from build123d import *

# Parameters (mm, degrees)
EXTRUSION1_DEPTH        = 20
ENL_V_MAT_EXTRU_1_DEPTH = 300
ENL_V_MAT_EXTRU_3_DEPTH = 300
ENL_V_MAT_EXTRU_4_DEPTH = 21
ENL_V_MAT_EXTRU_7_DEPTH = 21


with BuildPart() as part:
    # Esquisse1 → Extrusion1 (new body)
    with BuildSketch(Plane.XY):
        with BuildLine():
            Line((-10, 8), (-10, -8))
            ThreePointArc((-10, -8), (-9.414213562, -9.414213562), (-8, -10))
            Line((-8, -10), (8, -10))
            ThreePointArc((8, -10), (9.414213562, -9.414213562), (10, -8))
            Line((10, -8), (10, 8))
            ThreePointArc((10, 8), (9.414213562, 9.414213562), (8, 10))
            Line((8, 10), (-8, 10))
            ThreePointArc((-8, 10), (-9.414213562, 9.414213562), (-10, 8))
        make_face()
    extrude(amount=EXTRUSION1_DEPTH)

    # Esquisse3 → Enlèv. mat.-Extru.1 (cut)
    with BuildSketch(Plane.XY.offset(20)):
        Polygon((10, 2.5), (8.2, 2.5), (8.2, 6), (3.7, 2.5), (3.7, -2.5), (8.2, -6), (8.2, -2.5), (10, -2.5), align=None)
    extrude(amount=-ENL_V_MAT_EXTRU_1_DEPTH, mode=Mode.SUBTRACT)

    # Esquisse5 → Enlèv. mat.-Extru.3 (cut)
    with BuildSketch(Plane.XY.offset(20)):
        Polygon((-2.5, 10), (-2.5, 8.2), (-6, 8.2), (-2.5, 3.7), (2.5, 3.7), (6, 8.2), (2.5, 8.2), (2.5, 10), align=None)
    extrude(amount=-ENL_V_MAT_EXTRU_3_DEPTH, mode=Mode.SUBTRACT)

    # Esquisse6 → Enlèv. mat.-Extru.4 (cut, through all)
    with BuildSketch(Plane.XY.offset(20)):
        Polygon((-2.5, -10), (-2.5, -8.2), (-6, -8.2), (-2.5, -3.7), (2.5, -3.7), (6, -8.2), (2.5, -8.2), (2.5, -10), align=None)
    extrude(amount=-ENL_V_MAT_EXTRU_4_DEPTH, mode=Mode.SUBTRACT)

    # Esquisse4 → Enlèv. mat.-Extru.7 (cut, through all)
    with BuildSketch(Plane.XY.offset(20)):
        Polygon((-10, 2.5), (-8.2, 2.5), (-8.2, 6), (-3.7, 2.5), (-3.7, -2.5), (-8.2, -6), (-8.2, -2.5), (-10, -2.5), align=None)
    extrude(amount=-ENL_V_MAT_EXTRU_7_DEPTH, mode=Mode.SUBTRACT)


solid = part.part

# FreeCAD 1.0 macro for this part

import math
import FreeCAD as App
import Part
import Sketcher
from FreeCAD import Vector
Q = App.Units.Quantity


def add_polygon(sketch, points):
    """Adds a closed chain of lines whose ends are joined by coincident constraints."""
    first, n = sketch.GeometryCount, len(points)
    for a, b in zip(points, points[1:] + points[:1]):
        sketch.addGeometry(Part.LineSegment(App.Vector(*a, 0), App.Vector(*b, 0)), False)
    for i in range(n):
        sketch.addConstraint(Sketcher.Constraint("Coincident", first + i, 2, first + (i + 1) % n, 1))

doc = App.newDocument("Part")
params = doc.addObject("Spreadsheet::Sheet", "Params")
for row, (alias, value) in enumerate([
    ("sketch1_radius", "2 mm"),
    ("sketch1_width", "16 mm"),
    ("pad1_length", "20 mm"),
    ("sketch2_height", "5 mm"),
    ("sketch2_width", "1.8 mm"),
    ("sketch2_height2", "3.5 mm"),
    ("pocket1_length", "300 mm"),
    ("sketch3_width", "5 mm"),
    ("sketch3_width2", "3.5 mm"),
    ("sketch3_height", "1.8 mm"),
    ("pocket2_length", "300 mm"),
    ("sketch4_width", "5 mm"),
    ("sketch4_width2", "3.5 mm"),
    ("sketch4_height", "1.8 mm"),
    ("sketch5_height", "5 mm"),
    ("sketch5_width", "1.8 mm"),
    ("sketch5_height2", "3.5 mm"),
], start=1):
    params.set(f"A{row}", alias)
    params.set(f"B{row}", "=" + value)
    params.setAlias(f"B{row}", alias)

body = doc.addObject("PartDesign::Body", "Body")

sketch1 = body.newObject("Sketcher::SketchObject", "Sketch")
sketch1.AttachmentSupport = (doc.getObject("XY_Plane"), [""])
sketch1.MapMode = "FlatFace"
sketch1.addGeometry([
    Part.LineSegment(Vector(-10, 8, 0), Vector(-10, -8, 0)),
    Part.ArcOfCircle(Part.Circle(Vector(-8, -8, 0), Vector(0, 0, 1), 2), math.radians(-180), math.radians(-90)),
    Part.LineSegment(Vector(-8, -10, 0), Vector(8, -10, 0)),
    Part.ArcOfCircle(Part.Circle(Vector(8, -8, 0), Vector(0, 0, 1), 2), math.radians(-90), math.radians(0)),
    Part.LineSegment(Vector(10, -8, 0), Vector(10, 8, 0)),
    Part.ArcOfCircle(Part.Circle(Vector(8, 8, 0), Vector(0, 0, 1), 2), math.radians(0), math.radians(90)),
    Part.LineSegment(Vector(8, 10, 0), Vector(-8, 10, 0)),
    Part.ArcOfCircle(Part.Circle(Vector(-8, 8, 0), Vector(0, 0, 1), 2), math.radians(90), math.radians(180)),
], False)
sketch1.addConstraint([
    Sketcher.Constraint("Tangent", 0, 2, 1, 1),
    Sketcher.Constraint("Tangent", 1, 2, 2, 1),
    Sketcher.Constraint("Tangent", 2, 2, 3, 1),
    Sketcher.Constraint("Tangent", 3, 2, 4, 1),
    Sketcher.Constraint("Tangent", 4, 2, 5, 1),
    Sketcher.Constraint("Tangent", 5, 2, 6, 1),
    Sketcher.Constraint("Tangent", 6, 2, 7, 1),
    Sketcher.Constraint("Tangent", 7, 2, 0, 1),
    Sketcher.Constraint("Vertical", 0),
    Sketcher.Constraint("Horizontal", 2),
    Sketcher.Constraint("Vertical", 4),
    Sketcher.Constraint("Horizontal", 6),
    Sketcher.Constraint("Equal", 1, 3),
    Sketcher.Constraint("Equal", 3, 5),
    Sketcher.Constraint("Equal", 5, 7),
    Sketcher.Constraint("Symmetric", 1, 3, 5, 3, -1, 1),
    Sketcher.Constraint("Equal", 6, 0),
    Sketcher.Constraint("Radius", 1, Q("2 mm")),
    Sketcher.Constraint("DistanceX", 2, 1, 2, 2, Q("16 mm")),
])
sketch1.setExpression("Constraints[17]", "Params.sketch1_radius")
sketch1.setExpression("Constraints[18]", "Params.sketch1_width")
pad1 = body.newObject("PartDesign::Pad", "Pad")
pad1.Profile = sketch1
pad1.setExpression("Length", "Params.pad1_length")

sketch2 = body.newObject("Sketcher::SketchObject", "Sketch001")
sketch2.AttachmentSupport = (doc.getObject("XY_Plane"), [""])
sketch2.MapMode = "FlatFace"
sketch2.AttachmentOffset = App.Placement(Vector(0, 0, 20), App.Rotation())
add_polygon(sketch2, [(10, 2.5), (8.2, 2.5), (8.2, 6), (3.7, 2.5), (3.7, -2.5), (8.2, -6), (8.2, -2.5), (10, -2.5)])
sketch2.addConstraint([
    Sketcher.Constraint("Horizontal", 0),
    Sketcher.Constraint("Vertical", 1),
    Sketcher.Constraint("Vertical", 3),
    Sketcher.Constraint("Vertical", 5),
    Sketcher.Constraint("Horizontal", 6),
    Sketcher.Constraint("Vertical", 7),
    Sketcher.Constraint("Symmetric", 1, 2, 4, 2, -1),
    Sketcher.Constraint("Horizontal", 0, 2, 2, 2),
    Sketcher.Constraint("Horizontal", 3, 2, 5, 2),
    Sketcher.Constraint("Equal", 1, 5),
    Sketcher.Constraint("DistanceY", 3, 2, 3, 1, Q("5 mm")),
    Sketcher.Constraint("DistanceX", 0, 2, 0, 1, Q("1.8 mm")),
    Sketcher.Constraint("DistanceY", 1, 1, 1, 2, Q("3.5 mm")),
    Sketcher.Constraint("DistanceX", -1, 1, 6, 2, Q("10 mm")),
    Sketcher.Constraint("DistanceX", -1, 1, 2, 2, Q("3.7 mm")),
])
sketch2.setExpression("Constraints[18]", "Params.sketch2_height")
sketch2.setExpression("Constraints[19]", "Params.sketch2_width")
sketch2.setExpression("Constraints[20]", "Params.sketch2_height2")
pocket1 = body.newObject("PartDesign::Pocket", "Pocket")
pocket1.Profile = sketch2
pocket1.setExpression("Length", "Params.pocket1_length")

sketch3 = body.newObject("Sketcher::SketchObject", "Sketch002")
sketch3.AttachmentSupport = (doc.getObject("XY_Plane"), [""])
sketch3.MapMode = "FlatFace"
sketch3.AttachmentOffset = App.Placement(Vector(0, 0, 20), App.Rotation())
add_polygon(sketch3, [(-2.5, 10), (-2.5, 8.2), (-6, 8.2), (-2.5, 3.7), (2.5, 3.7), (6, 8.2), (2.5, 8.2), (2.5, 10)])
sketch3.addConstraint([
    Sketcher.Constraint("Vertical", 0),
    Sketcher.Constraint("Horizontal", 1),
    Sketcher.Constraint("Horizontal", 3),
    Sketcher.Constraint("Horizontal", 5),
    Sketcher.Constraint("Vertical", 6),
    Sketcher.Constraint("Horizontal", 7),
    Sketcher.Constraint("Symmetric", 1, 2, 4, 2, -2),
    Sketcher.Constraint("Vertical", 0, 2, 2, 2),
    Sketcher.Constraint("Vertical", 3, 2, 5, 2),
    Sketcher.Constraint("Equal", 1, 5),
    Sketcher.Constraint("DistanceX", 3, 1, 3, 2, Q("5 mm")),
    Sketcher.Constraint("DistanceX", 1, 2, 1, 1, Q("3.5 mm")),
    Sketcher.Constraint("DistanceY", 0, 2, 0, 1, Q("1.8 mm")),
    Sketcher.Constraint("DistanceY", -1, 1, 6, 2, Q("10 mm")),
    Sketcher.Constraint("DistanceY", -1, 1, 2, 2, Q("3.7 mm")),
])
sketch3.setExpression("Constraints[18]", "Params.sketch3_width")
sketch3.setExpression("Constraints[19]", "Params.sketch3_width2")
sketch3.setExpression("Constraints[20]", "Params.sketch3_height")
pocket2 = body.newObject("PartDesign::Pocket", "Pocket001")
pocket2.Profile = sketch3
pocket2.setExpression("Length", "Params.pocket2_length")

sketch4 = body.newObject("Sketcher::SketchObject", "Sketch003")
sketch4.AttachmentSupport = (doc.getObject("XY_Plane"), [""])
sketch4.MapMode = "FlatFace"
sketch4.AttachmentOffset = App.Placement(Vector(0, 0, 20), App.Rotation())
add_polygon(sketch4, [(-2.5, -8.2), (-2.5, -10), (2.5, -10), (2.5, -8.2), (6, -8.2), (2.5, -3.7), (-2.5, -3.7), (-6, -8.2)])
sketch4.addConstraint([
    Sketcher.Constraint("Vertical", 0),
    Sketcher.Constraint("Horizontal", 1),
    Sketcher.Constraint("Vertical", 2),
    Sketcher.Constraint("Horizontal", 3),
    Sketcher.Constraint("Horizontal", 5),
    Sketcher.Constraint("Horizontal", 7),
    Sketcher.Constraint("Symmetric", 3, 2, 6, 2, -2),
    Sketcher.Constraint("Vertical", 2, 2, 4, 2),
    Sketcher.Constraint("Vertical", 0, 2, 5, 2),
    Sketcher.Constraint("Equal", 3, 7),
    Sketcher.Constraint("DistanceX", 1, 1, 1, 2, Q("5 mm")),
    Sketcher.Constraint("DistanceX", 3, 1, 3, 2, Q("3.5 mm")),
    Sketcher.Constraint("DistanceY", 0, 2, 0, 1, Q("1.8 mm")),
    Sketcher.Constraint("DistanceY", 0, 2, -1, 1, Q("10 mm")),
    Sketcher.Constraint("DistanceY", 4, 2, -1, 1, Q("3.7 mm")),
])
sketch4.setExpression("Constraints[18]", "Params.sketch4_width")
sketch4.setExpression("Constraints[19]", "Params.sketch4_width2")
sketch4.setExpression("Constraints[20]", "Params.sketch4_height")
pocket3 = body.newObject("PartDesign::Pocket", "Pocket002")
pocket3.Profile = sketch4
pocket3.Type = "ThroughAll"

sketch5 = body.newObject("Sketcher::SketchObject", "Sketch004")
sketch5.AttachmentSupport = (doc.getObject("XY_Plane"), [""])
sketch5.MapMode = "FlatFace"
sketch5.AttachmentOffset = App.Placement(Vector(0, 0, 20), App.Rotation())
add_polygon(sketch5, [(-8.2, 2.5), (-10, 2.5), (-10, -2.5), (-8.2, -2.5), (-8.2, -6), (-3.7, -2.5), (-3.7, 2.5), (-8.2, 6)])
sketch5.addConstraint([
    Sketcher.Constraint("Horizontal", 0),
    Sketcher.Constraint("Vertical", 1),
    Sketcher.Constraint("Horizontal", 2),
    Sketcher.Constraint("Vertical", 3),
    Sketcher.Constraint("Vertical", 5),
    Sketcher.Constraint("Vertical", 7),
    Sketcher.Constraint("Symmetric", 3, 2, 6, 2, -1),
    Sketcher.Constraint("Horizontal", 2, 2, 4, 2),
    Sketcher.Constraint("Horizontal", 0, 2, 5, 2),
    Sketcher.Constraint("Equal", 3, 7),
    Sketcher.Constraint("DistanceY", 1, 2, 1, 1, Q("5 mm")),
    Sketcher.Constraint("DistanceX", 0, 2, 0, 1, Q("1.8 mm")),
    Sketcher.Constraint("DistanceY", 3, 2, 3, 1, Q("3.5 mm")),
    Sketcher.Constraint("DistanceX", 0, 2, -1, 1, Q("10 mm")),
    Sketcher.Constraint("DistanceX", 4, 2, -1, 1, Q("3.7 mm")),
])
sketch5.setExpression("Constraints[18]", "Params.sketch5_height")
sketch5.setExpression("Constraints[19]", "Params.sketch5_width")
sketch5.setExpression("Constraints[20]", "Params.sketch5_height2")
pocket4 = body.newObject("PartDesign::Pocket", "Pocket003")
pocket4.Profile = sketch5
pocket4.Type = "ThroughAll"

doc.recompute()
